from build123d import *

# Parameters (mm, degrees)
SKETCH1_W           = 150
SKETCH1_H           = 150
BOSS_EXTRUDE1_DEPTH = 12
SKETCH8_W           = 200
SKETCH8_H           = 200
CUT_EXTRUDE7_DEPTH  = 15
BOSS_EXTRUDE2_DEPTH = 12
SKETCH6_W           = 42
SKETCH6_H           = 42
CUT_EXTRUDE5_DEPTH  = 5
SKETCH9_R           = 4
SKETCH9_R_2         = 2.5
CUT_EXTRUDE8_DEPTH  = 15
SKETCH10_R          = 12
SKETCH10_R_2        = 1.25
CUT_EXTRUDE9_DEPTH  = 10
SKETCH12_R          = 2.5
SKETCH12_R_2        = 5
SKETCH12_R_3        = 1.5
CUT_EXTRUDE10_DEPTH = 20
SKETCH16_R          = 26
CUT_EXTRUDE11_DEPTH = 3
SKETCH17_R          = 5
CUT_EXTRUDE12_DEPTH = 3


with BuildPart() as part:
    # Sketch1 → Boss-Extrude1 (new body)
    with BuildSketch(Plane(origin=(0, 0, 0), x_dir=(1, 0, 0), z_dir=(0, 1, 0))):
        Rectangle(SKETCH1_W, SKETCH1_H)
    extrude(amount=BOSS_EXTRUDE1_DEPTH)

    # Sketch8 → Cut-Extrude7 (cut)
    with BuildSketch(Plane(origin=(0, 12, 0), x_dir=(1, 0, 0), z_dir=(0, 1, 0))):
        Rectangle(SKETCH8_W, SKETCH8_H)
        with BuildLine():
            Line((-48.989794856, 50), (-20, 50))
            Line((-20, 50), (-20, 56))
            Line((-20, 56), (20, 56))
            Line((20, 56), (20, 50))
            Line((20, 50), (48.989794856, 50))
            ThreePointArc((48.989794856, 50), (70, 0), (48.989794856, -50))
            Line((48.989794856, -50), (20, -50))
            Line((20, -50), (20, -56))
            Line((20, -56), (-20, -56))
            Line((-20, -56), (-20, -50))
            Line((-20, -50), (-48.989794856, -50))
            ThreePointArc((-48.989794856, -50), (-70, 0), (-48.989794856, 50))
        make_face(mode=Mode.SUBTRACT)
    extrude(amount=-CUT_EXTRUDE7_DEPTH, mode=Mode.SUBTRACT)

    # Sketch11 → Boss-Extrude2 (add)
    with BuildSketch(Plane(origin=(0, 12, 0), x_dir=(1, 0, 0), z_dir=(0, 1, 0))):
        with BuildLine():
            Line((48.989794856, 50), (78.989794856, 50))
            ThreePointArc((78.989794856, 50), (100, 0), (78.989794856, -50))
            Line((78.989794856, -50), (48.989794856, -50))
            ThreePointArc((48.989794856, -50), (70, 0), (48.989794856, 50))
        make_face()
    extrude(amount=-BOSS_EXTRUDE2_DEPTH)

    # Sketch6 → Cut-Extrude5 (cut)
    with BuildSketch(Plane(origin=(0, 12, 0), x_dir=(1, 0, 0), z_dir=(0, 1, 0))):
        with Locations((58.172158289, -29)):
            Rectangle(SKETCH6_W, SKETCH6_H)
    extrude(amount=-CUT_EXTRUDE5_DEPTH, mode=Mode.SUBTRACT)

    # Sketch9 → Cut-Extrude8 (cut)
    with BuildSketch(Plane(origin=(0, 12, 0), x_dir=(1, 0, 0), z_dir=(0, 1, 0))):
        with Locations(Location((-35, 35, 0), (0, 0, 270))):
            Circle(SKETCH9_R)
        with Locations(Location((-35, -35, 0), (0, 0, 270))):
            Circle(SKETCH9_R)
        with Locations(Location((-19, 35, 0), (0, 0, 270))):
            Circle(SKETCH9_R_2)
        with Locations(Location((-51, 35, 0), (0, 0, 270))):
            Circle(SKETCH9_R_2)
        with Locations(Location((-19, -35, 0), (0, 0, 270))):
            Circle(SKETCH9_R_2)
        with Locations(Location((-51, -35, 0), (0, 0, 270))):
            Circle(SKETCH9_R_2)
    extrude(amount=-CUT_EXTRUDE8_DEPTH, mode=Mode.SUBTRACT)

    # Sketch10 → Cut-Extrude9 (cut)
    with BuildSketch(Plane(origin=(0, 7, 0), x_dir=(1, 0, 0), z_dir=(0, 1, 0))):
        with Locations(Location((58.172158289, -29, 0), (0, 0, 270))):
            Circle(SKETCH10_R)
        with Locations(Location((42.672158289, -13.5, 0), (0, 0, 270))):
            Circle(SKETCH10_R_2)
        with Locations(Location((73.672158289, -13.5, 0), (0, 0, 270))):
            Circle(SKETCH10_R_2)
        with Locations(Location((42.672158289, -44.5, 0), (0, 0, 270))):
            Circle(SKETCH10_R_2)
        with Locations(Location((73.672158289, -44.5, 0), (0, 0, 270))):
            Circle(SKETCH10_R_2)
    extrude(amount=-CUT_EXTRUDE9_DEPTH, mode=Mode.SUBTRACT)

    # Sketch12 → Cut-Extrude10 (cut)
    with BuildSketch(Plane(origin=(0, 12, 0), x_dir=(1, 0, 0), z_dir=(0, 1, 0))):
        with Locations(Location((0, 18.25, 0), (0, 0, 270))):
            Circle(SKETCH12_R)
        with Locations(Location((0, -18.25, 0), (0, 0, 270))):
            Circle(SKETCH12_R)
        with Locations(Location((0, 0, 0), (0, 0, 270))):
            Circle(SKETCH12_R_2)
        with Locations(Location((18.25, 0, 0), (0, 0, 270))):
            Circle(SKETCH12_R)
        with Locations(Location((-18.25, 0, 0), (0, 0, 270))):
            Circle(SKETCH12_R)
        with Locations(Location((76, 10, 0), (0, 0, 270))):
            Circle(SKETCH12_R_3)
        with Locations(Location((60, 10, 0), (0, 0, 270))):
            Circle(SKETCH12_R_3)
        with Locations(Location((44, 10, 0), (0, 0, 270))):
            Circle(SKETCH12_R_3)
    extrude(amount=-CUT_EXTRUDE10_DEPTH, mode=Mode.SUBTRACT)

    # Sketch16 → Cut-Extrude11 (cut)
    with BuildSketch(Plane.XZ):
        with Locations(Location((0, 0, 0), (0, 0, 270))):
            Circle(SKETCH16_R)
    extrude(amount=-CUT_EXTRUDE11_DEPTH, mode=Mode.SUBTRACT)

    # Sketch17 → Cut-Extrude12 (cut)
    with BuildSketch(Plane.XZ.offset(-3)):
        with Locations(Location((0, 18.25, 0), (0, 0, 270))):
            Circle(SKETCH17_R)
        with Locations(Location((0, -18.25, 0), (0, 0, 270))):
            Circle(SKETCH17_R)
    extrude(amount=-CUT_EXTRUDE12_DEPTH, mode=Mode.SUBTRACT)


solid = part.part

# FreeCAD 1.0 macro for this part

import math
import FreeCAD as App
import Part
import Sketcher
from FreeCAD import Vector
Q = App.Units.Quantity


def add_polygon(sketch, points):
    """Adds a closed chain of lines whose ends are joined by coincident constraints."""
    first, n = sketch.GeometryCount, len(points)
    for a, b in zip(points, points[1:] + points[:1]):
        sketch.addGeometry(Part.LineSegment(App.Vector(*a, 0), App.Vector(*b, 0)), False)
    for i in range(n):
        sketch.addConstraint(Sketcher.Constraint("Coincident", first + i, 2, first + (i + 1) % n, 1))

doc = App.newDocument("Part")
body = doc.addObject("PartDesign::Body", "Body")

sketch1 = body.newObject("Sketcher::SketchObject", "Sketch")
sketch1.AttachmentSupport = (doc.getObject("XZ_Plane"), [""])
sketch1.MapMode = "FlatFace"
add_polygon(sketch1, [(-75, -75), (-75, 75), (75, 75), (75, -75)])
sketch1.addConstraint(Sketcher.Constraint("Vertical", 0))
sketch1.addConstraint(Sketcher.Constraint("Horizontal", 1))
sketch1.addConstraint(Sketcher.Constraint("Vertical", 2))
sketch1.addConstraint(Sketcher.Constraint("Horizontal", 3))
sketch1.addConstraint(Sketcher.Constraint("Symmetric", 0, 2, 2, 2, -1, 1))
sketch1.addConstraint(Sketcher.Constraint("Equal", 3, 0))
sketch1.addConstraint(Sketcher.Constraint("DistanceX", 1, 1, 1, 2, Q("150 mm")))
pad1 = body.newObject("PartDesign::Pad", "Pad")
pad1.Profile = sketch1
pad1.Length = 12
pad1.Reversed = True

sketch2 = body.newObject("Sketcher::SketchObject", "Sketch001")
sketch2.AttachmentSupport = (doc.getObject("XZ_Plane"), [""])
sketch2.MapMode = "FlatFace"
sketch2.AttachmentOffset = App.Placement(Vector(0, 0, -12), App.Rotation())
add_polygon(sketch2, [(-100, -100), (-100, 100), (100, 100), (100, -100)])
sketch2.addGeometry(Part.ArcOfCircle(Part.Circle(Vector(0, 0, 0), Vector(0, 0, 1), 70), math.radians(134.415309), math.radians(225.584691)), False)
sketch2.addGeometry(Part.LineSegment(Vector(-48.989795, -50, 0), Vector(-20, -50, 0)), False)
sketch2.addGeometry(Part.LineSegment(Vector(-20, -50, 0), Vector(-20, -56, 0)), False)
sketch2.addGeometry(Part.LineSegment(Vector(-20, -56, 0), Vector(20, -56, 0)), False)
sketch2.addGeometry(Part.LineSegment(Vector(20, -56, 0), Vector(20, -50, 0)), False)
sketch2.addGeometry(Part.LineSegment(Vector(20, -50, 0), Vector(48.989795, -50, 0)), False)
sketch2.addGeometry(Part.ArcOfCircle(Part.Circle(Vector(0, 0, 0), Vector(0, 0, 1), 70), math.radians(-45.584691), math.radians(45.584691)), False)
sketch2.addGeometry(Part.LineSegment(Vector(48.989795, 50, 0), Vector(20, 50, 0)), False)
sketch2.addGeometry(Part.LineSegment(Vector(20, 50, 0), Vector(20, 56, 0)), False)
sketch2.addGeometry(Part.LineSegment(Vector(20, 56, 0), Vector(-20, 56, 0)), False)
sketch2.addGeometry(Part.LineSegment(Vector(-20, 56, 0), Vector(-20, 50, 0)), False)
sketch2.addGeometry(Part.LineSegment(Vector(-20, 50, 0), Vector(-48.989795, 50, 0)), False)
sketch2.addConstraint(Sketcher.Constraint("Coincident", 4, 2, 5, 1))
sketch2.addConstraint(Sketcher.Constraint("Coincident", 5, 2, 6, 1))
sketch2.addConstraint(Sketcher.Constraint("Coincident", 6, 2, 7, 1))
sketch2.addConstraint(Sketcher.Constraint("Coincident", 7, 2, 8, 1))
sketch2.addConstraint(Sketcher.Constraint("Coincident", 8, 2, 9, 1))
sketch2.addConstraint(Sketcher.Constraint("Coincident", 9, 2, 10, 1))
sketch2.addConstraint(Sketcher.Constraint("Coincident", 10, 2, 11, 1))
sketch2.addConstraint(Sketcher.Constraint("Coincident", 11, 2, 12, 1))
sketch2.addConstraint(Sketcher.Constraint("Coincident", 12, 2, 13, 1))
sketch2.addConstraint(Sketcher.Constraint("Coincident", 13, 2, 14, 1))
sketch2.addConstraint(Sketcher.Constraint("Coincident", 14, 2, 15, 1))
sketch2.addConstraint(Sketcher.Constraint("Coincident", 15, 2, 4, 1))
sketch2.addConstraint(Sketcher.Constraint("Vertical", 0))
sketch2.addConstraint(Sketcher.Constraint("Horizontal", 1))
sketch2.addConstraint(Sketcher.Constraint("Vertical", 2))
sketch2.addConstraint(Sketcher.Constraint("Horizontal", 3))
sketch2.addConstraint(Sketcher.Constraint("Horizontal", 5))
sketch2.addConstraint(Sketcher.Constraint("Vertical", 6))
sketch2.addConstraint(Sketcher.Constraint("Horizontal", 7))
sketch2.addConstraint(Sketcher.Constraint("Vertical", 8))
sketch2.addConstraint(Sketcher.Constraint("Horizontal", 9))
sketch2.addConstraint(Sketcher.Constraint("Horizontal", 11))
sketch2.addConstraint(Sketcher.Constraint("Vertical", 12))
sketch2.addConstraint(Sketcher.Constraint("Horizontal", 13))
sketch2.addConstraint(Sketcher.Constraint("Vertical", 14))
sketch2.addConstraint(Sketcher.Constraint("Horizontal", 15))
sketch2.addConstraint(Sketcher.Constraint("Coincident", 4, 3, -1, 1))
sketch2.addConstraint(Sketcher.Constraint("Coincident", 10, 3, -1, 1))
sketch2.addConstraint(Sketcher.Constraint("Equal", 4, 10))
sketch2.addConstraint(Sketcher.Constraint("Symmetric", 0, 2, 2, 2, -1, 1))
sketch2.addConstraint(Sketcher.Constraint("Symmetric", 5, 2, 11, 2, -1, 1))
sketch2.addConstraint(Sketcher.Constraint("Symmetric", 7, 2, 13, 2, -1, 1))
sketch2.addConstraint(Sketcher.Constraint("Symmetric", 5, 2, 8, 2, -2))
sketch2.addConstraint(Sketcher.Constraint("Horizontal", 11, 2, 14, 2))
sketch2.addConstraint(Sketcher.Constraint("Equal", 3, 0))
sketch2.addConstraint(Sketcher.Constraint("Radius", 4, Q("70 mm")))
sketch2.addConstraint(Sketcher.Constraint("DistanceX", 1, 1, 1, 2, Q("200 mm")))
sketch2.addConstraint(Sketcher.Constraint("DistanceX", 7, 1, 7, 2, Q("40 mm")))
sketch2.addConstraint(Sketcher.Constraint("DistanceY", 6, 2, 6, 1, Q("6 mm")))
sketch2.addConstraint(Sketcher.Constraint("DistanceY", 4, 2, -1, 1, Q("50 mm")))
pocket1 = body.newObject("PartDesign::Pocket", "Pocket")
pocket1.Profile = sketch2
pocket1.Length = 15
pocket1.Reversed = True

sketch3 = body.newObject("Sketcher::SketchObject", "Sketch002")
sketch3.AttachmentSupport = (doc.getObject("XZ_Plane"), [""])
sketch3.MapMode = "FlatFace"
sketch3.AttachmentOffset = App.Placement(Vector(0, 0, -12), App.Rotation())
sketch3.addGeometry(Part.LineSegment(Vector(78.989795, -50, 0), Vector(48.989795, -50, 0)), False)
sketch3.addGeometry(Part.ArcOfCircle(Part.Circle(Vector(0, 0, 0), Vector(0, 0, 1), 70), math.radians(-45.584691), math.radians(45.584691)), False)
sketch3.addGeometry(Part.LineSegment(Vector(48.989795, 50, 0), Vector(78.989795, 50, 0)), False)
sketch3.addGeometry(Part.ArcOfCircle(Part.Circle(Vector(30, 0, 0), Vector(0, 0, 1), 70), math.radians(-45.584691), math.radians(45.584691)), False)
sketch3.addConstraint(Sketcher.Constraint("Coincident", 0, 2, 1, 1))
sketch3.addConstraint(Sketcher.Constraint("Coincident", 1, 2, 2, 1))
sketch3.addConstraint(Sketcher.Constraint("Coincident", 2, 2, 3, 2))
sketch3.addConstraint(Sketcher.Constraint("Coincident", 3, 1, 0, 1))
sketch3.addConstraint(Sketcher.Constraint("Horizontal", 0))
sketch3.addConstraint(Sketcher.Constraint("Horizontal", 2))
sketch3.addConstraint(Sketcher.Constraint("Coincident", 1, 3, -1, 1))
sketch3.addConstraint(Sketcher.Constraint("Equal", 1, 3))
sketch3.addConstraint(Sketcher.Constraint("Symmetric", 2, 2, 3, 1, -1))
sketch3.addConstraint(Sketcher.Constraint("Radius", 1, Q("70 mm")))
sketch3.addConstraint(Sketcher.Constraint("DistanceX", 0, 2, 0, 1, Q("30 mm")))
sketch3.addConstraint(Sketcher.Constraint("DistanceY", 0, 2, -1, 1, Q("50 mm")))
pad2 = body.newObject("PartDesign::Pad", "Pad001")
pad2.Profile = sketch3
pad2.Length = 12

sketch4 = body.newObject("Sketcher::SketchObject", "Sketch003")
sketch4.AttachmentSupport = (doc.getObject("XZ_Plane"), [""])
sketch4.MapMode = "FlatFace"
sketch4.AttachmentOffset = App.Placement(Vector(0, 0, -12), App.Rotation())
add_polygon(sketch4, [(37.172158, 8), (37.172158, 50), (79.172158, 50), (79.172158, 8)])
sketch4.addConstraint(Sketcher.Constraint("Vertical", 0))
sketch4.addConstraint(Sketcher.Constraint("Horizontal", 1))
sketch4.addConstraint(Sketcher.Constraint("Vertical", 2))
sketch4.addConstraint(Sketcher.Constraint("Horizontal", 3))
sketch4.addConstraint(Sketcher.Constraint("Equal", 3, 0))
sketch4.addConstraint(Sketcher.Constraint("DistanceX", 1, 1, 1, 2, Q("42 mm")))
sketch4.addConstraint(Sketcher.Constraint("DistanceY", -1, 1, 0, 2, Q("50 mm")))
sketch4.addConstraint(Sketcher.Constraint("DistanceX", -1, 1, 0, 2, Q("37.172158 mm")))
pocket2 = body.newObject("PartDesign::Pocket", "Pocket001")
pocket2.Profile = sketch4
pocket2.Length = 5
pocket2.Reversed = True

sketch5 = body.newObject("Sketcher::SketchObject", "Sketch004")
sketch5.AttachmentSupport = (doc.getObject("XZ_Plane"), [""])
sketch5.MapMode = "FlatFace"
sketch5.AttachmentOffset = App.Placement(Vector(0, 0, -12), App.Rotation())
sketch5.addGeometry(Part.Circle(Vector(-35, -35, 0), Vector(0, 0, 1), 4), False)
sketch5.addGeometry(Part.Circle(Vector(-35, 35, 0), Vector(0, 0, 1), 4), False)
sketch5.addGeometry(Part.Circle(Vector(-19, -35, 0), Vector(0, 0, 1), 2.5), False)
sketch5.addGeometry(Part.Circle(Vector(-51, -35, 0), Vector(0, 0, 1), 2.5), False)
sketch5.addGeometry(Part.Circle(Vector(-19, 35, 0), Vector(0, 0, 1), 2.5), False)
sketch5.addGeometry(Part.Circle(Vector(-51, 35, 0), Vector(0, 0, 1), 2.5), False)
sketch5.addConstraint(Sketcher.Constraint("Equal", 0, 1))
sketch5.addConstraint(Sketcher.Constraint("Equal", 2, 3))
sketch5.addConstraint(Sketcher.Constraint("Equal", 3, 4))
sketch5.addConstraint(Sketcher.Constraint("Equal", 4, 5))
sketch5.addConstraint(Sketcher.Constraint("Symmetric", 0, 3, 1, 3, -1))
sketch5.addConstraint(Sketcher.Constraint("Symmetric", 2, 3, 4, 3, -1))
sketch5.addConstraint(Sketcher.Constraint("Symmetric", 3, 3, 5, 3, -1))
sketch5.addConstraint(Sketcher.Constraint("Horizontal", 0, 3, 2, 3))
sketch5.addConstraint(Sketcher.Constraint("Horizontal", 2, 3, 3, 3))
sketch5.addConstraint(Sketcher.Constraint("Diameter", 0, Q("8 mm")))
sketch5.addConstraint(Sketcher.Constraint("Diameter", 2, Q("5 mm")))
sketch5.addConstraint(Sketcher.Constraint("DistanceX", 0, 3, -1, 1, Q("35 mm")))
sketch5.addConstraint(Sketcher.Constraint("DistanceY", 0, 3, -1, 1, Q("35 mm")))
sketch5.addConstraint(Sketcher.Constraint("DistanceX", 2, 3, -1, 1, Q("19 mm")))
sketch5.addConstraint(Sketcher.Constraint("DistanceX", 3, 3, -1, 1, Q("51 mm")))
pocket3 = body.newObject("PartDesign::Pocket", "Pocket002")
pocket3.Profile = sketch5
pocket3.Length = 15
pocket3.Reversed = True

sketch6 = body.newObject("Sketcher::SketchObject", "Sketch005")
sketch6.AttachmentSupport = (doc.getObject("XZ_Plane"), [""])
sketch6.MapMode = "FlatFace"
sketch6.AttachmentOffset = App.Placement(Vector(0, 0, -7), App.Rotation())
sketch6.addGeometry(Part.Circle(Vector(58.172158, 29, 0), Vector(0, 0, 1), 12), False)
sketch6.addGeometry(Part.Circle(Vector(42.672158, 13.5, 0), Vector(0, 0, 1), 1.25), False)
sketch6.addGeometry(Part.Circle(Vector(73.672158, 13.5, 0), Vector(0, 0, 1), 1.25), False)
sketch6.addGeometry(Part.Circle(Vector(42.672158, 44.5, 0), Vector(0, 0, 1), 1.25), False)
sketch6.addGeometry(Part.Circle(Vector(73.672158, 44.5, 0), Vector(0, 0, 1), 1.25), False)
sketch6.addConstraint(Sketcher.Constraint("Equal", 1, 2))
sketch6.addConstraint(Sketcher.Constraint("Equal", 2, 3))
sketch6.addConstraint(Sketcher.Constraint("Equal", 3, 4))
sketch6.addConstraint(Sketcher.Constraint("Horizontal", 1, 3, 2, 3))
sketch6.addConstraint(Sketcher.Constraint("Horizontal", 3, 3, 4, 3))
sketch6.addConstraint(Sketcher.Constraint("Vertical", 1, 3, 3, 3))
sketch6.addConstraint(Sketcher.Constraint("Vertical", 2, 3, 4, 3))
sketch6.addConstraint(Sketcher.Constraint("Diameter", 0, Q("24 mm")))
sketch6.addConstraint(Sketcher.Constraint("Diameter", 1, Q("2.5 mm")))
sketch6.addConstraint(Sketcher.Constraint("DistanceY", -1, 1, 0, 3, Q("29 mm")))
sketch6.addConstraint(Sketcher.Constraint("DistanceX", 1, 3, 2, 3, Q("31 mm")))
sketch6.addConstraint(Sketcher.Constraint("DistanceY", 1, 3, 3, 3, Q("31 mm")))
sketch6.addConstraint(Sketcher.Constraint("DistanceY", -1, 1, 1, 3, Q("13.5 mm")))
sketch6.addConstraint(Sketcher.Constraint("DistanceX", 1, 3, 0, 3, Q("15.5 mm")))
sketch6.addConstraint(Sketcher.Constraint("DistanceX", -1, 1, 0, 3, Q("58.172158 mm")))
pocket4 = body.newObject("PartDesign::Pocket", "Pocket003")
pocket4.Profile = sketch6
pocket4.Length = 10
pocket4.Reversed = True

sketch7 = body.newObject("Sketcher::SketchObject", "Sketch006")
sketch7.AttachmentSupport = (doc.getObject("XZ_Plane"), [""])
sketch7.MapMode = "FlatFace"
sketch7.AttachmentOffset = App.Placement(Vector(0, 0, -12), App.Rotation())
sketch7.addGeometry(Part.Circle(Vector(0, -18.25, 0), Vector(0, 0, 1), 2.5), False)
sketch7.addGeometry(Part.Circle(Vector(0, 18.25, 0), Vector(0, 0, 1), 2.5), False)
sketch7.addGeometry(Part.Circle(Vector(0, 0, 0), Vector(0, 0, 1), 5), False)
sketch7.addGeometry(Part.Circle(Vector(18.25, 0, 0), Vector(0, 0, 1), 2.5), False)
sketch7.addGeometry(Part.Circle(Vector(-18.25, 0, 0), Vector(0, 0, 1), 2.5), False)
sketch7.addGeometry(Part.Circle(Vector(76, -10, 0), Vector(0, 0, 1), 1.5), False)
sketch7.addGeometry(Part.Circle(Vector(60, -10, 0), Vector(0, 0, 1), 1.5), False)
sketch7.addGeometry(Part.Circle(Vector(44, -10, 0), Vector(0, 0, 1), 1.5), False)
sketch7.addConstraint(Sketcher.Constraint("Coincident", 2, 3, -1, 1))
sketch7.addConstraint(Sketcher.Constraint("Equal", 0, 1))
sketch7.addConstraint(Sketcher.Constraint("Equal", 1, 3))
sketch7.addConstraint(Sketcher.Constraint("Equal", 3, 4))
sketch7.addConstraint(Sketcher.Constraint("Equal", 5, 6))
sketch7.addConstraint(Sketcher.Constraint("Equal", 6, 7))
sketch7.addConstraint(Sketcher.Constraint("Symmetric", 0, 3, 1, 3, -1, 1))
sketch7.addConstraint(Sketcher.Constraint("Symmetric", 3, 3, 4, 3, -1, 1))
sketch7.addConstraint(Sketcher.Constraint("PointOnObject", 0, 3, -2))
sketch7.addConstraint(Sketcher.Constraint("PointOnObject", 3, 3, -1))
sketch7.addConstraint(Sketcher.Constraint("Horizontal", 5, 3, 6, 3))
sketch7.addConstraint(Sketcher.Constraint("Horizontal", 6, 3, 7, 3))
sketch7.addConstraint(Sketcher.Constraint("Diameter", 0, Q("5 mm")))
sketch7.addConstraint(Sketcher.Constraint("Diameter", 2, Q("10 mm")))
sketch7.addConstraint(Sketcher.Constraint("Diameter", 5, Q("3 mm")))
sketch7.addConstraint(Sketcher.Constraint("DistanceX", -1, 1, 5, 3, Q("76 mm")))
sketch7.addConstraint(Sketcher.Constraint("DistanceY", 5, 3, -1, 1, Q("10 mm")))
sketch7.addConstraint(Sketcher.Constraint("DistanceX", -1, 1, 6, 3, Q("60 mm")))
sketch7.addConstraint(Sketcher.Constraint("DistanceX", -1, 1, 7, 3, Q("44 mm")))
sketch7.addConstraint(Sketcher.Constraint("DistanceY", 0, 3, 1, 3, Q("36.5 mm")))
sketch7.addConstraint(Sketcher.Constraint("DistanceX", 4, 3, 3, 3, Q("36.5 mm")))
pocket5 = body.newObject("PartDesign::Pocket", "Pocket004")
pocket5.Profile = sketch7
pocket5.Length = 20
pocket5.Reversed = True

sketch8 = body.newObject("Sketcher::SketchObject", "Sketch007")
sketch8.AttachmentSupport = (doc.getObject("XZ_Plane"), [""])
sketch8.MapMode = "FlatFace"
sketch8.addGeometry(Part.Circle(Vector(0, 0, 0), Vector(0, 0, 1), 26), False)
sketch8.addConstraint(Sketcher.Constraint("Coincident", 0, 3, -1, 1))
sketch8.addConstraint(Sketcher.Constraint("Diameter", 0, Q("52 mm")))
pocket6 = body.newObject("PartDesign::Pocket", "Pocket005")
pocket6.Profile = sketch8
pocket6.Length = 3

sketch9 = body.newObject("Sketcher::SketchObject", "Sketch008")
sketch9.AttachmentSupport = (doc.getObject("XZ_Plane"), [""])
sketch9.MapMode = "FlatFace"
sketch9.AttachmentOffset = App.Placement(Vector(0, 0, -3), App.Rotation())
sketch9.addGeometry(Part.Circle(Vector(0, 18.25, 0), Vector(0, 0, 1), 5), False)
sketch9.addGeometry(Part.Circle(Vector(0, -18.25, 0), Vector(0, 0, 1), 5), False)
sketch9.addConstraint(Sketcher.Constraint("Equal", 0, 1))
sketch9.addConstraint(Sketcher.Constraint("Symmetric", 0, 3, 1, 3, -1, 1))
sketch9.addConstraint(Sketcher.Constraint("PointOnObject", 0, 3, -2))
sketch9.addConstraint(Sketcher.Constraint("Diameter", 0, Q("10 mm")))
sketch9.addConstraint(Sketcher.Constraint("DistanceY", 1, 3, 0, 3, Q("36.5 mm")))
pocket7 = body.newObject("PartDesign::Pocket", "Pocket006")
pocket7.Profile = sketch9
pocket7.Length = 3

doc.recompute()
